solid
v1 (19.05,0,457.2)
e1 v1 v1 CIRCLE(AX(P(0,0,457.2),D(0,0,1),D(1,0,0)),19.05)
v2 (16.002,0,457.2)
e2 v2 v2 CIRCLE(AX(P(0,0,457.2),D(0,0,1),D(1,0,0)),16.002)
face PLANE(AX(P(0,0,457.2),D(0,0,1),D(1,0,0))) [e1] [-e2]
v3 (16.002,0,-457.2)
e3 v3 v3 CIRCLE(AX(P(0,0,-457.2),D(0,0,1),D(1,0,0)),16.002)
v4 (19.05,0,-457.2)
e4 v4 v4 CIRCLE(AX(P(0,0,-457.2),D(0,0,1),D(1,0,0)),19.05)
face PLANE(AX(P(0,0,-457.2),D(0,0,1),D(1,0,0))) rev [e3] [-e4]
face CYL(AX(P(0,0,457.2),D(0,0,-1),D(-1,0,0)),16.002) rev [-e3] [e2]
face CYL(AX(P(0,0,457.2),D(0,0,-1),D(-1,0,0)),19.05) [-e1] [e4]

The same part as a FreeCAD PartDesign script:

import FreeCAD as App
import Part
import Sketcher
Q = App.Units.Quantity

doc = App.newDocument("Part")
body = doc.addObject("PartDesign::Body", "Body")

sketch1 = body.newObject("Sketcher::SketchObject", "Sketch")
sketch1.AttachmentSupport = (doc.getObject("XY_Plane"), [""])
sketch1.MapMode = "FlatFace"
sketch1.addGeometry([
    Part.Circle(App.Vector(0, 0, 0), App.Vector(0, 0, 1), 19),
    Part.Circle(App.Vector(0, 0, 0), App.Vector(0, 0, 1), 16),
], False)
sketch1.addConstraint([
    Sketcher.Constraint("Coincident", 0, 3, -1, 1),
    Sketcher.Constraint("Coincident", 1, 3, -1, 1),
    Sketcher.Constraint("Diameter", 0, Q("1.5 in")),
    Sketcher.Constraint("Diameter", 1, Q("1.26 in")),
])
pad1 = body.newObject("PartDesign::Pad", "Pad")
pad1.Profile = sketch1
pad1.Type = "TwoLengths"
pad1.Length = Q("18 in")
pad1.Length2 = Q("18 in")

doc.recompute()
